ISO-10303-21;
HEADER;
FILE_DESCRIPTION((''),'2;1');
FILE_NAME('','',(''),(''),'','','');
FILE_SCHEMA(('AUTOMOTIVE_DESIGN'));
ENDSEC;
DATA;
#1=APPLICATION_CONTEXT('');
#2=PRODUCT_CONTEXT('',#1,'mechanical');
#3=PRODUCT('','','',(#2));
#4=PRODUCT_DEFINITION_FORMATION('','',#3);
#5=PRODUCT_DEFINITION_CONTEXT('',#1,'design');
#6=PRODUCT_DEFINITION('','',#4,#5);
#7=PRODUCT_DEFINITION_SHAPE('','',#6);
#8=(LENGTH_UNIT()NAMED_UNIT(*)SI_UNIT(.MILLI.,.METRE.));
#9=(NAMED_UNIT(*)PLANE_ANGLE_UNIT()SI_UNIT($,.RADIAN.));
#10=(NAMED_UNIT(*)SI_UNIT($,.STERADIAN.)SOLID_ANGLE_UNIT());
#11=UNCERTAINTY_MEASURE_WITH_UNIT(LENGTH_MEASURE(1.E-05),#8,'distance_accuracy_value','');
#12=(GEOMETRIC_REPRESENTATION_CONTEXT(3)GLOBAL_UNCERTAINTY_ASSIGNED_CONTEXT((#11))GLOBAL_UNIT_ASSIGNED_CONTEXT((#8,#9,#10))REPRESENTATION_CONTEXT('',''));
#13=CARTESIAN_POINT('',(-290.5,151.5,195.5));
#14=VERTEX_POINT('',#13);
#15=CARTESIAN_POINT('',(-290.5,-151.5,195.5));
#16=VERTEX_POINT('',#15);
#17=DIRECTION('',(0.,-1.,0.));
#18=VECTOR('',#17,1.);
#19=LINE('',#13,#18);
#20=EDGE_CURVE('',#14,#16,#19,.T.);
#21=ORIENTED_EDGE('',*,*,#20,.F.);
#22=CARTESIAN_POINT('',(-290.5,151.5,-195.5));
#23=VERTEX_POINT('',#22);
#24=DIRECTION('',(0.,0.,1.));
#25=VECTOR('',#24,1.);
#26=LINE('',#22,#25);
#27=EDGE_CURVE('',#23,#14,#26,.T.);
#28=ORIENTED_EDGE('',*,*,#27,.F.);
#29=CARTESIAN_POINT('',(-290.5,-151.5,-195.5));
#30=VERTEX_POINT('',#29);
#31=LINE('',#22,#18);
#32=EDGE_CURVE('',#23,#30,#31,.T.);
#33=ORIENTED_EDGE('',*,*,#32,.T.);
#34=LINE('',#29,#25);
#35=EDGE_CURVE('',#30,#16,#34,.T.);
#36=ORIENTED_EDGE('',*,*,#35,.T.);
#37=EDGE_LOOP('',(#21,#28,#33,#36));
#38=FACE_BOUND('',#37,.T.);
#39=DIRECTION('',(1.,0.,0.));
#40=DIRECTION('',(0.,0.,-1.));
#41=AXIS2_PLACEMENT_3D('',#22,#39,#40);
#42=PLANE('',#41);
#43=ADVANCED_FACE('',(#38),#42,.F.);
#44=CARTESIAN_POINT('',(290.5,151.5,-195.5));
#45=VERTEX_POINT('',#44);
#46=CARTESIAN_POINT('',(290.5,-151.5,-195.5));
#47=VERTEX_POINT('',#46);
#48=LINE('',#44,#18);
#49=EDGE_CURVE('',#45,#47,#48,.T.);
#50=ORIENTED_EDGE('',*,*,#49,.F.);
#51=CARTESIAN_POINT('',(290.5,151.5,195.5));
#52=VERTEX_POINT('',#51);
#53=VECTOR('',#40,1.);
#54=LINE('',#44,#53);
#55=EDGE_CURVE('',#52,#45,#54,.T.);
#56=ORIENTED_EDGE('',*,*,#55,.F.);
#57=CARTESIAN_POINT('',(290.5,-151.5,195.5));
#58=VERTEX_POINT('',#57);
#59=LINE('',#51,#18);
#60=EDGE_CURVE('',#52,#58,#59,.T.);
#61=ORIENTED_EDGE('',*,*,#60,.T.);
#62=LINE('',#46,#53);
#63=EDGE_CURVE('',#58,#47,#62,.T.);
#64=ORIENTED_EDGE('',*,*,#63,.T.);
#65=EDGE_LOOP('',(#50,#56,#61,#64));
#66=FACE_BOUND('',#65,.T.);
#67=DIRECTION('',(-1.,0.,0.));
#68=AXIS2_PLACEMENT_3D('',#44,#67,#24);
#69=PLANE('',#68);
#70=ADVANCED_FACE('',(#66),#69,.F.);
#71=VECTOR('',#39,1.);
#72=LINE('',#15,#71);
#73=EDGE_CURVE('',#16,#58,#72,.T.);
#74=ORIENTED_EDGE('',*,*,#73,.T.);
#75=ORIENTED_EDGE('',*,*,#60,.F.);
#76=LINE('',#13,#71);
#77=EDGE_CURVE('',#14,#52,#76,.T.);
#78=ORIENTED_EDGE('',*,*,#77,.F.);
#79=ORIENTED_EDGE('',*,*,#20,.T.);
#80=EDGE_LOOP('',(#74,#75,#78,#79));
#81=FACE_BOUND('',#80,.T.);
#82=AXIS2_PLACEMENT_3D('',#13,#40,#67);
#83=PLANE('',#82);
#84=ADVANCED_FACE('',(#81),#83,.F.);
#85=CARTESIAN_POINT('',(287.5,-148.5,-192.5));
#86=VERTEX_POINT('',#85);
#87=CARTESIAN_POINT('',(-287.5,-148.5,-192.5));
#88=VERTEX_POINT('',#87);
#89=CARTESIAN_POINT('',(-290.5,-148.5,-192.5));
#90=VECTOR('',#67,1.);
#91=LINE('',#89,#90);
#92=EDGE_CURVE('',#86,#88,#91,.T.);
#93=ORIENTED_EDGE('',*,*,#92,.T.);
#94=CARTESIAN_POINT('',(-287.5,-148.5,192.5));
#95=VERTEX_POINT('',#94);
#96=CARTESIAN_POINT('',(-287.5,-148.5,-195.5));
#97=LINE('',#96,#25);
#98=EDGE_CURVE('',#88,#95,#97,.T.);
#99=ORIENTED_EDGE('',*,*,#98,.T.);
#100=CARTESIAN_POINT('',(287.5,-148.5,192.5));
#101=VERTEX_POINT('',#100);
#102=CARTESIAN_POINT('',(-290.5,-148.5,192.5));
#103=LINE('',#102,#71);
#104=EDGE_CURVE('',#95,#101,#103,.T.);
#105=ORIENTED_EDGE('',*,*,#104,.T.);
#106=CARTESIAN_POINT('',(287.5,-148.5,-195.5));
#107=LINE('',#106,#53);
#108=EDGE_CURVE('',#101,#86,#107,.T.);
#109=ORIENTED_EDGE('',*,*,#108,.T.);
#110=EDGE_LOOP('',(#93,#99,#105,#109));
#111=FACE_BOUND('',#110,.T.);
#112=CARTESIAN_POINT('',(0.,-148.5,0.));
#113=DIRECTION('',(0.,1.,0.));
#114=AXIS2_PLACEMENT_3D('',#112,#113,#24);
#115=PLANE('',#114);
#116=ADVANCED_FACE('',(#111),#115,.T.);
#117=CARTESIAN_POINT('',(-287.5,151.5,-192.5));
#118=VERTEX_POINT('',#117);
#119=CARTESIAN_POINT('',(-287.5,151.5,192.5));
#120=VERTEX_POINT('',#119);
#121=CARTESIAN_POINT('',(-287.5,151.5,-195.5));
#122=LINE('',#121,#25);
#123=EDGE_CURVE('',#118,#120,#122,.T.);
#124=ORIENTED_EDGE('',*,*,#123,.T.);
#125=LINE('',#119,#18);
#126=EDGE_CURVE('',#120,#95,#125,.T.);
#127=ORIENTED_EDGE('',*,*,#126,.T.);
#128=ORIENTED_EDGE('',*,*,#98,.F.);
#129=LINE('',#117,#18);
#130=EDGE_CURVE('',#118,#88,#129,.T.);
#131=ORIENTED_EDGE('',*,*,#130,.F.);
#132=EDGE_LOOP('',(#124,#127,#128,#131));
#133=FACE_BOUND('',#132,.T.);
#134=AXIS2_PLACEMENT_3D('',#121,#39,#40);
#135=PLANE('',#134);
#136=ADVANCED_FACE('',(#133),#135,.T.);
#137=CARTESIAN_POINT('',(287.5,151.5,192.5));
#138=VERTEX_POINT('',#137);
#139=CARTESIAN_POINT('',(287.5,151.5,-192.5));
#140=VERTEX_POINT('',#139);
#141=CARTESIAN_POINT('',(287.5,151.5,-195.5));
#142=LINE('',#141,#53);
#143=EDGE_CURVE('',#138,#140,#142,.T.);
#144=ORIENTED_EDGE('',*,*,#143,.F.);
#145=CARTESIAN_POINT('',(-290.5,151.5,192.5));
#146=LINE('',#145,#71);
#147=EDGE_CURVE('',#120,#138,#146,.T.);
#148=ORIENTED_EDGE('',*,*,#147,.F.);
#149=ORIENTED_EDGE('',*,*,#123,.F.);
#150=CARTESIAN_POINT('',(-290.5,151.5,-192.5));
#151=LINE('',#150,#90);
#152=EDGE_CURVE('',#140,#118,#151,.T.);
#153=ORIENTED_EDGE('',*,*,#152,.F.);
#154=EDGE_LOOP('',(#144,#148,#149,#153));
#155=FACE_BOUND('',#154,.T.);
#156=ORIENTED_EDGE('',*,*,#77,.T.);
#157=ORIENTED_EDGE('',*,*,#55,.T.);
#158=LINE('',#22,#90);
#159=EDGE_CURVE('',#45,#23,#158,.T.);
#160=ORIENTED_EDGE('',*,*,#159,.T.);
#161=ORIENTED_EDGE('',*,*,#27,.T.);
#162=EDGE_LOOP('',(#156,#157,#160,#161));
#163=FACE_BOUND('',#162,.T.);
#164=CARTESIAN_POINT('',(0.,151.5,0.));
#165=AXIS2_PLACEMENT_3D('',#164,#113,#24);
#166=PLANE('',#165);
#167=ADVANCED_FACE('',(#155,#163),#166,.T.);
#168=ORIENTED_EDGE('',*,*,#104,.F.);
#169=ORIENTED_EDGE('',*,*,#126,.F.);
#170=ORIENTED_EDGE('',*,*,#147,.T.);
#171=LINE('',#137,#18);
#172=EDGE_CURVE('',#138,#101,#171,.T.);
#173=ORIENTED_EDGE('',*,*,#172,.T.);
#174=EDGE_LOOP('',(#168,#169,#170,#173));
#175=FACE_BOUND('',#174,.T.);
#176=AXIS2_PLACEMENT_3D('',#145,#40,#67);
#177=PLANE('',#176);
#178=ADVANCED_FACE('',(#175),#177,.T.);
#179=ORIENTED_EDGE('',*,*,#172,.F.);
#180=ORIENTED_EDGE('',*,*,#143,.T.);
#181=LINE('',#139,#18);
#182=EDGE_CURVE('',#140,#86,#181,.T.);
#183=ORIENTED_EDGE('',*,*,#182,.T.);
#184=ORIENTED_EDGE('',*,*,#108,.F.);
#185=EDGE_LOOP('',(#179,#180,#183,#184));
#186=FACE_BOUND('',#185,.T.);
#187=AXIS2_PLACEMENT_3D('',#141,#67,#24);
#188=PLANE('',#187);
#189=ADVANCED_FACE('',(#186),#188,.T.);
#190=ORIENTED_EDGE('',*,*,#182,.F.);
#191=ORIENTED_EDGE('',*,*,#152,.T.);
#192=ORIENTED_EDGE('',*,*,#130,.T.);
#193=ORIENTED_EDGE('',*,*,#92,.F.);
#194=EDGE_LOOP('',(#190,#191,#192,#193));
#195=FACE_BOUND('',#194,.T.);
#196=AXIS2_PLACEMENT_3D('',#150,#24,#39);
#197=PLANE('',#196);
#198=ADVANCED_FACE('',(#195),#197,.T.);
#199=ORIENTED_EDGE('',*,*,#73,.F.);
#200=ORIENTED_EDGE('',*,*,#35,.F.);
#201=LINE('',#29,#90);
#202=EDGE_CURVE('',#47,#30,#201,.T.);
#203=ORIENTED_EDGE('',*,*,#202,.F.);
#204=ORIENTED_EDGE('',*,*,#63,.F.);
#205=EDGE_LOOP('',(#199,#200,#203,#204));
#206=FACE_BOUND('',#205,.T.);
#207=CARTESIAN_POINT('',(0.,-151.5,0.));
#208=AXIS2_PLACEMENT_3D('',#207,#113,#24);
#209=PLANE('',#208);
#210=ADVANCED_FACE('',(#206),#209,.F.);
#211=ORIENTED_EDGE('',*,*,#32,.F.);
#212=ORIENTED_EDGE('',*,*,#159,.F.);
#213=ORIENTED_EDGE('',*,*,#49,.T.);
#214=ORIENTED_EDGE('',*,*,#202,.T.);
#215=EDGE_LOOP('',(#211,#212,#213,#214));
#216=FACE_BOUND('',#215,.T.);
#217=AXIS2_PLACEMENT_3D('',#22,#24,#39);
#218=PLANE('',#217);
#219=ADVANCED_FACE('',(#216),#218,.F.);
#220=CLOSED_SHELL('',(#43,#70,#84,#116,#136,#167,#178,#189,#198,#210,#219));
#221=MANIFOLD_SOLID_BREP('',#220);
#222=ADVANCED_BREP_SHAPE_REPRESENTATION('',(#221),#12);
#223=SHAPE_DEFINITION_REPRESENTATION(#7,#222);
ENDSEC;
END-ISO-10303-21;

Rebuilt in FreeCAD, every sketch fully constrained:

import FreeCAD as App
import Part
import Sketcher

V = App.Vector
Q = App.Units.Quantity


def faces_at(feature, points):
    """Names of the faces that lie closest to the given points."""
    faces = feature.Shape.Faces
    near = lambda p: min(range(len(faces)), key=lambda i: faces[i].distToShape(Part.Vertex(*p))[0])
    return sorted({f"Face{near(p) + 1}" for p in points})

doc = App.newDocument("Part")
body = doc.addObject("PartDesign::Body", "Body")

sketch1 = body.newObject("Sketcher::SketchObject", "Sketch")
sketch1.AttachmentSupport = (doc.getObject("XZ_Plane"), [""])
sketch1.MapMode = "FlatFace"
sketch1.addGeometry([
    Part.LineSegment(V(-290.5, -195.5, 0), V(-290.5, 195.5, 0)),
    Part.LineSegment(V(-290.5, 195.5, 0), V(290.5, 195.5, 0)),
    Part.LineSegment(V(290.5, 195.5, 0), V(290.5, -195.5, 0)),
    Part.LineSegment(V(290.5, -195.5, 0), V(-290.5, -195.5, 0)),
], False)
sketch1.addConstraint([
    Sketcher.Constraint("Coincident", 0, 2, 1, 1),
    Sketcher.Constraint("Coincident", 1, 2, 2, 1),
    Sketcher.Constraint("Coincident", 2, 2, 3, 1),
    Sketcher.Constraint("Coincident", 3, 2, 0, 1),
    Sketcher.Constraint("Vertical", 0),
    Sketcher.Constraint("Horizontal", 1),
    Sketcher.Constraint("Vertical", 2),
    Sketcher.Constraint("Horizontal", 3),
    Sketcher.Constraint("Symmetric", 0, 2, 2, 2, -1, 1),
    Sketcher.Constraint("DistanceX", 1, 1, 1, 2, Q("581 mm")),
    Sketcher.Constraint("DistanceY", 0, 1, 0, 2, Q("391 mm")),
])
pad1 = body.newObject("PartDesign::Pad", "Pad")
pad1.Profile = sketch1
pad1.Length = 303
pad1.Midplane = True
doc.recompute()

thickness = body.newObject("PartDesign::Thickness", "Thickness")
thickness.Base = (pad1, faces_at(pad1, [(0, 151.5, 0)]))
thickness.Value = 3
thickness.Reversed = True
thickness.Join = "Intersection"

doc.recompute()
